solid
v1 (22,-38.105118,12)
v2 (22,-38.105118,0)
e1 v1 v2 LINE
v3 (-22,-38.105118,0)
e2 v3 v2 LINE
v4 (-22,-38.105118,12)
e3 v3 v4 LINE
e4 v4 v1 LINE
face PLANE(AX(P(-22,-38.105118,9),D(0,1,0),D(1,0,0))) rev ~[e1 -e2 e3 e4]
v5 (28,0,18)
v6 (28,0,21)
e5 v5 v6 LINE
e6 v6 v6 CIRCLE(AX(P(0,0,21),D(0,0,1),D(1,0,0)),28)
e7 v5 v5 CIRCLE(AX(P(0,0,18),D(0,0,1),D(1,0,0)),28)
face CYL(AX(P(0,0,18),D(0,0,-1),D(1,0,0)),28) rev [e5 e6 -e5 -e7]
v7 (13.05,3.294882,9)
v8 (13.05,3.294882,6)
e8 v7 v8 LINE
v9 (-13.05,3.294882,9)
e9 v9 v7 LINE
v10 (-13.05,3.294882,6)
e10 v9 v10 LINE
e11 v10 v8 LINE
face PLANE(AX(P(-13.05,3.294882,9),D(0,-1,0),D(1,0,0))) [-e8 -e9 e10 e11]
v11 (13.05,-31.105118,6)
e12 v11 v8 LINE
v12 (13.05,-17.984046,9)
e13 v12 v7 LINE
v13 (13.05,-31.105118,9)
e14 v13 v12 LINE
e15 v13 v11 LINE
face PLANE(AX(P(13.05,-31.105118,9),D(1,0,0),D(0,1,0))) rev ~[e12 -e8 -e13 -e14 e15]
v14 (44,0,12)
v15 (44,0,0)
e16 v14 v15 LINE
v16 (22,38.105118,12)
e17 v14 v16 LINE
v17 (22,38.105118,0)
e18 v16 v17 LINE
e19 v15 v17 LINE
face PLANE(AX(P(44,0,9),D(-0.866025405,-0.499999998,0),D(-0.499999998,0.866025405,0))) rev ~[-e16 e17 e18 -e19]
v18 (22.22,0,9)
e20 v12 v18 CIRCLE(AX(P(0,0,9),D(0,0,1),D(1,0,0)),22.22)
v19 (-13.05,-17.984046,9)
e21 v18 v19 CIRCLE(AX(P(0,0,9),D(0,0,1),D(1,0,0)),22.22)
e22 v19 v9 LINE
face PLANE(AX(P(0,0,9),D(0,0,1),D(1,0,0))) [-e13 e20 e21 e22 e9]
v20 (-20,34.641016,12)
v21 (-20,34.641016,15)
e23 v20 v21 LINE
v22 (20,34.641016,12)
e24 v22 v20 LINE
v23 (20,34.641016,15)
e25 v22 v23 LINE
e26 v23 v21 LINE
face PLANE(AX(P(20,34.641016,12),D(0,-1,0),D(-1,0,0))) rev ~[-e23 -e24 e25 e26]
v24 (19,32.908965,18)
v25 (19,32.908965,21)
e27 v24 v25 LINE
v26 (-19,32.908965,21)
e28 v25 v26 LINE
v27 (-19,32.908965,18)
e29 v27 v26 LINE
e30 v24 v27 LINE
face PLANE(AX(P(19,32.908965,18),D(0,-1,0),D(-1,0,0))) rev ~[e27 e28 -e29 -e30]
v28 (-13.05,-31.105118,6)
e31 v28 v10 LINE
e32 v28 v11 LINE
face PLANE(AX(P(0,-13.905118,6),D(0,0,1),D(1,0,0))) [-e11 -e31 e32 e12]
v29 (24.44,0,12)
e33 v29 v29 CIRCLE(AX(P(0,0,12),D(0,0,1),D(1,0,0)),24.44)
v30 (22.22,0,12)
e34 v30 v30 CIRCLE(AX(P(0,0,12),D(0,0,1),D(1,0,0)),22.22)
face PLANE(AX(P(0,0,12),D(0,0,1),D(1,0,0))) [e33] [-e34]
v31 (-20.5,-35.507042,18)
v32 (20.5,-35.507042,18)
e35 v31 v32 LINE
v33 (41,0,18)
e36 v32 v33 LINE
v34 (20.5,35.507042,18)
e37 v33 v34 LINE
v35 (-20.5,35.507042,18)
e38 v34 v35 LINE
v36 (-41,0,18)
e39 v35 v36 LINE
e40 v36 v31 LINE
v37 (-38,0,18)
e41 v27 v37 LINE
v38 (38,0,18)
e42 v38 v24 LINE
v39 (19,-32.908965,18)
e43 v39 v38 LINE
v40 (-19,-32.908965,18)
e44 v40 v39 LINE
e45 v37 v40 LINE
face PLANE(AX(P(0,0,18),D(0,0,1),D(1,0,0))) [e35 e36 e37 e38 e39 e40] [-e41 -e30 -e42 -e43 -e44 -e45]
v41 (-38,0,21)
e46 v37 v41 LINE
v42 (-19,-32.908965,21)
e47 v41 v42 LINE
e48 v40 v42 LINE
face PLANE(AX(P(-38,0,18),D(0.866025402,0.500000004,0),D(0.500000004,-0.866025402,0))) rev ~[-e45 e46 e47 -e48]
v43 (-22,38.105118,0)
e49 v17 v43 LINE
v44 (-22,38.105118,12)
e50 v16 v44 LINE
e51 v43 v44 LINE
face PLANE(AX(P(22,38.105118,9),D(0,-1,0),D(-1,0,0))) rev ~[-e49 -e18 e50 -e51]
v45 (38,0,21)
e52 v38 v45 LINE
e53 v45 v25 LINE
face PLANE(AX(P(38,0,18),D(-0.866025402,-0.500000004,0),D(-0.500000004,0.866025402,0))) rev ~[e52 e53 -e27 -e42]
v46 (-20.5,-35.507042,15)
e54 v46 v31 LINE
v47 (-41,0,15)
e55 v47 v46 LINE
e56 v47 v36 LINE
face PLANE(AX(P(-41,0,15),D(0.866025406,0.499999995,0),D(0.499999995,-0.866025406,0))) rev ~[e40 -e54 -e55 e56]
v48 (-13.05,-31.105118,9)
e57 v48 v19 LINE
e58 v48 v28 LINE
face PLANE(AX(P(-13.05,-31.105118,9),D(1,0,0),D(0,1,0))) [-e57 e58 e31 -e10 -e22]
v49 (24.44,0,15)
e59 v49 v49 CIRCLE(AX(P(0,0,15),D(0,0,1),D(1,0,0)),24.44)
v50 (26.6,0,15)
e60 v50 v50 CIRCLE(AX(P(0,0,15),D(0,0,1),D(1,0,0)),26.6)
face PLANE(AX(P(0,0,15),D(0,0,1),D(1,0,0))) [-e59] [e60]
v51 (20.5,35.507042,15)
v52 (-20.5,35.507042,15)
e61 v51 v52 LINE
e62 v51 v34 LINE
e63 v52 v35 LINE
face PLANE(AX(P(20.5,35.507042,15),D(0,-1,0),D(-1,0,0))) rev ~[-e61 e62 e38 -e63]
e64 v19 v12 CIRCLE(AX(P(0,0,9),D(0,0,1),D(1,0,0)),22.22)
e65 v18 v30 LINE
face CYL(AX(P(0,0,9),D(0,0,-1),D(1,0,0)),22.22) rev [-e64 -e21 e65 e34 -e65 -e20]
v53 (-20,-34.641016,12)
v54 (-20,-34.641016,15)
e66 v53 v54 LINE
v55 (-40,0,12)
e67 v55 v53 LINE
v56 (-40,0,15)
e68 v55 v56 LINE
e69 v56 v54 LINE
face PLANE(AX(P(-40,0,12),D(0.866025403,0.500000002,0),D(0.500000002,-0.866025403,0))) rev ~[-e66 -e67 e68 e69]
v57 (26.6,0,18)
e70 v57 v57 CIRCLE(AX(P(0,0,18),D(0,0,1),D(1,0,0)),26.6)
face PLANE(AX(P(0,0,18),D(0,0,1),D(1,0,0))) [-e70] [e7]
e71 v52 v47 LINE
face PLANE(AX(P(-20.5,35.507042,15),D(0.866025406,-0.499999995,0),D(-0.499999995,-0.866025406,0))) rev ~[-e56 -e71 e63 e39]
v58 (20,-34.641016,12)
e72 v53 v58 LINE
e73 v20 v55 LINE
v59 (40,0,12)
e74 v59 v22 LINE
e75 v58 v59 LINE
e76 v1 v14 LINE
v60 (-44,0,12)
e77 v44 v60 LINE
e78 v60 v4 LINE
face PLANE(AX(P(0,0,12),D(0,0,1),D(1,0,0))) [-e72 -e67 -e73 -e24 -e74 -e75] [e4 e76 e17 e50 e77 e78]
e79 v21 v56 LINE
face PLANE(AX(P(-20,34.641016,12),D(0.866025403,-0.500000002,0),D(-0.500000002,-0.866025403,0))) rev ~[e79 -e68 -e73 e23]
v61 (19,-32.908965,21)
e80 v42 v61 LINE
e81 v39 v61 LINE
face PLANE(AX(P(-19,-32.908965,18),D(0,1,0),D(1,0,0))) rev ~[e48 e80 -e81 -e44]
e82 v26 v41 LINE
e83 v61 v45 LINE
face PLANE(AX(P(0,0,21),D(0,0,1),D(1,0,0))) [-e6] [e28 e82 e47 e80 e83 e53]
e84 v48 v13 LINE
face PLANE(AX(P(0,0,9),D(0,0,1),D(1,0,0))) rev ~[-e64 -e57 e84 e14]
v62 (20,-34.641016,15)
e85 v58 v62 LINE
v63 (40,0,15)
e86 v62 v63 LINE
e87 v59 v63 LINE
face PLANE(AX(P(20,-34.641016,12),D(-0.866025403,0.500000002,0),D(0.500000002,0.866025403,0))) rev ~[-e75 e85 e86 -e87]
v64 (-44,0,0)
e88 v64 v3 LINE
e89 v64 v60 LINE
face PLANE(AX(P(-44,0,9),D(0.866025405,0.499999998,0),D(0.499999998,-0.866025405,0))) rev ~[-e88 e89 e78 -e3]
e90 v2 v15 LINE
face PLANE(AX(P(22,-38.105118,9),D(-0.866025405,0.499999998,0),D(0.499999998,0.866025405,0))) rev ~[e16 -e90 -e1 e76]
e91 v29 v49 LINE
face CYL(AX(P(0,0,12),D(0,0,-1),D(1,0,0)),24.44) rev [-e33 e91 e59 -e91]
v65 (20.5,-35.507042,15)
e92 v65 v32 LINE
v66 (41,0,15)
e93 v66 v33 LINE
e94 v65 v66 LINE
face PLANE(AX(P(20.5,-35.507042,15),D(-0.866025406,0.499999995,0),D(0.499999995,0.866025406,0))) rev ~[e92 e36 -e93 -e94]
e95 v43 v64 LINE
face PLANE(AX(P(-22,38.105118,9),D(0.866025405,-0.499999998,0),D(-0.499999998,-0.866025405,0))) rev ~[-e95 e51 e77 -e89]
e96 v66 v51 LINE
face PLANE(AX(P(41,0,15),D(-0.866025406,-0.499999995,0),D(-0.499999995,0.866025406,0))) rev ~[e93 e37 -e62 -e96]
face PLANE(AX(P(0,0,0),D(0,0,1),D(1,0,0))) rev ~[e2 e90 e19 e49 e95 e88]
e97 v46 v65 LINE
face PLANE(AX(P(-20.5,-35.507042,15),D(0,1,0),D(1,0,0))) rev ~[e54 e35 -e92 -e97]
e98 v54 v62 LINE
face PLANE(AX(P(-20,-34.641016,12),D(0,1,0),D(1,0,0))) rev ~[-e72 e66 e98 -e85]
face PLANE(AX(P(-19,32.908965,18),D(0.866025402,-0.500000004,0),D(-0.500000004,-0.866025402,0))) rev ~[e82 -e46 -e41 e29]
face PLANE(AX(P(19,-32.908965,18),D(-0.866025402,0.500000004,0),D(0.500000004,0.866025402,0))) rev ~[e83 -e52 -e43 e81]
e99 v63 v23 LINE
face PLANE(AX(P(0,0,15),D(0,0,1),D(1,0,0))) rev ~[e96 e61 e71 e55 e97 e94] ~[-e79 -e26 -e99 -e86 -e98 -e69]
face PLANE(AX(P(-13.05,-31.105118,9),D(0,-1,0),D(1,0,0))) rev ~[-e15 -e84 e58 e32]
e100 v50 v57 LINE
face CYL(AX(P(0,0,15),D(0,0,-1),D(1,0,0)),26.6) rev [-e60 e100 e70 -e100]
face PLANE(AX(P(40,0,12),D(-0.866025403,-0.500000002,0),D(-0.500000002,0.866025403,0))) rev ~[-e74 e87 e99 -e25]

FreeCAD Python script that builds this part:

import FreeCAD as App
import Part
import Sketcher
Q = App.Units.Quantity


def add_polygon(sketch, points):
    """Adds a closed chain of lines whose ends are joined by coincident constraints."""
    first, n = sketch.GeometryCount, len(points)
    for a, b in zip(points, points[1:] + points[:1]):
        sketch.addGeometry(Part.LineSegment(App.Vector(*a, 0), App.Vector(*b, 0)), False)
    for i in range(n):
        sketch.addConstraint(Sketcher.Constraint("Coincident", first + i, 2, first + (i + 1) % n, 1))

doc = App.newDocument("Part")
body = doc.addObject("PartDesign::Body", "Body")

# Sketch on XY plane
sketch1 = doc.addObject("Sketcher::SketchObject", "Sketch")
body.addObject(sketch1)
sketch1.AttachmentSupport = (doc.XY_Plane, [""])
sketch1.MapMode = "FlatFace"
add_polygon(sketch1, [(44, 0), (22, 38), (-22, 38), (-44, 0), (-22, -38), (22, -38)])  # lines 0-5
sketch1.addConstraint(Sketcher.Constraint("Horizontal", 1))
sketch1.addConstraint(Sketcher.Constraint("Horizontal", 4))
sketch1.addConstraint(Sketcher.Constraint("Symmetric", 0, 2, 3, 2, -1, 1))
sketch1.addConstraint(Sketcher.Constraint("Symmetric", 2, 2, 5, 2, -1, 1))
sketch1.addConstraint(Sketcher.Constraint("PointOnObject", 2, 2, -1))
sketch1.addConstraint(Sketcher.Constraint("Parallel", 2, 5))
sketch1.addConstraint(Sketcher.Constraint("Vertical", 1, 2, 3, 2))
sketch1.addConstraint(Sketcher.Constraint("DistanceX", 1, 2, 1, 1, Q("44 mm")))
sketch1.addConstraint(Sketcher.Constraint("Angle", 0, Q("120 deg")))
sketch1.addConstraint(Sketcher.Constraint("Distance", 0, Q("44 mm")))
pad1 = doc.addObject("PartDesign::Pad", "Pad")
body.addObject(pad1)
pad1.Profile = sketch1
pad1.Length = 9

# Sketch on XY plane
sketch2 = doc.addObject("Sketcher::SketchObject", "Sketch001")
body.addObject(sketch2)
sketch2.AttachmentSupport = (doc.XY_Plane, [""])
sketch2.MapMode = "FlatFace"
sketch2.AttachmentOffset = App.Placement(App.Vector(0, 0, 9), App.Rotation())
add_polygon(sketch2, [(-13, 3), (-13, -31), (13, -31), (13, 3)])  # lines 0-3
sketch2.addConstraint(Sketcher.Constraint("Vertical", 0))
sketch2.addConstraint(Sketcher.Constraint("Horizontal", 1))
sketch2.addConstraint(Sketcher.Constraint("Vertical", 2))
sketch2.addConstraint(Sketcher.Constraint("Horizontal", 3))
sketch2.addConstraint(Sketcher.Constraint("DistanceX", 1, 1, 1, 2, Q("26.1 mm")))
sketch2.addConstraint(Sketcher.Constraint("DistanceY", 0, 2, 0, 1, Q("34.4 mm")))
sketch2.addConstraint(Sketcher.Constraint("DistanceX", 0, 2, -1, 1, Q("13.05 mm")))
sketch2.addConstraint(Sketcher.Constraint("DistanceY", 0, 2, -1, 1, Q("31.105118 mm")))
pocket1 = doc.addObject("PartDesign::Pocket", "Pocket")
body.addObject(pocket1)
pocket1.Profile = sketch2
pocket1.Length = 3

# Sketch on XY plane
sketch3 = doc.addObject("Sketcher::SketchObject", "Sketch002")
body.addObject(sketch3)
sketch3.AttachmentSupport = (doc.XY_Plane, [""])
sketch3.MapMode = "FlatFace"
sketch3.AttachmentOffset = App.Placement(App.Vector(0, 0, 9), App.Rotation())
add_polygon(sketch3, [(22, 38), (-22, 38), (-44, 0), (-22, -38), (22, -38), (44, 0)])  # lines 0-5
sketch3.addGeometry(Part.Circle(App.Vector(0, 0, 0), App.Vector(0, 0, 1), 22), False)  # 6
sketch3.addConstraint(Sketcher.Constraint("Horizontal", 0))
sketch3.addConstraint(Sketcher.Constraint("Horizontal", 3))
sketch3.addConstraint(Sketcher.Constraint("Coincident", 6, 3, -1, 1))
sketch3.addConstraint(Sketcher.Constraint("Symmetric", 0, 2, 3, 2, -1, 1))
sketch3.addConstraint(Sketcher.Constraint("Symmetric", 1, 2, 4, 2, -1, 1))
sketch3.addConstraint(Sketcher.Constraint("PointOnObject", 1, 2, -1))
sketch3.addConstraint(Sketcher.Constraint("Parallel", 2, 5))
sketch3.addConstraint(Sketcher.Constraint("Vertical", 0, 2, 2, 2))
sketch3.addConstraint(Sketcher.Constraint("Diameter", 6, Q("44.44 mm")))
sketch3.addConstraint(Sketcher.Constraint("DistanceX", 0, 2, 0, 1, Q("44 mm")))
sketch3.addConstraint(Sketcher.Constraint("Angle", 1, Q("-120 deg")))
sketch3.addConstraint(Sketcher.Constraint("Distance", 1, Q("44 mm")))
pad2 = doc.addObject("PartDesign::Pad", "Pad001")
body.addObject(pad2)
pad2.Profile = sketch3
pad2.Length = 3

# Sketch on XY plane
sketch4 = doc.addObject("Sketcher::SketchObject", "Sketch003")
body.addObject(sketch4)
sketch4.AttachmentSupport = (doc.XY_Plane, [""])
sketch4.MapMode = "FlatFace"
sketch4.AttachmentOffset = App.Placement(App.Vector(0, 0, 12), App.Rotation())
add_polygon(sketch4, [(40, 0), (20, 35), (-20, 35), (-40, 0), (-20, -35), (20, -35)])  # lines 0-5
sketch4.addGeometry(Part.Circle(App.Vector(0, 0, 0), App.Vector(0, 0, 1), 24), False)  # 6
sketch4.addConstraint(Sketcher.Constraint("Horizontal", 1))
sketch4.addConstraint(Sketcher.Constraint("Horizontal", 4))
sketch4.addConstraint(Sketcher.Constraint("Coincident", 6, 3, -1, 1))
sketch4.addConstraint(Sketcher.Constraint("Symmetric", 0, 2, 3, 2, -1, 1))
sketch4.addConstraint(Sketcher.Constraint("Symmetric", 2, 2, 5, 2, -1, 1))
sketch4.addConstraint(Sketcher.Constraint("PointOnObject", 2, 2, -1))
sketch4.addConstraint(Sketcher.Constraint("Parallel", 2, 5))
sketch4.addConstraint(Sketcher.Constraint("Vertical", 1, 2, 3, 2))
sketch4.addConstraint(Sketcher.Constraint("Diameter", 6, Q("48.88 mm")))
sketch4.addConstraint(Sketcher.Constraint("DistanceX", 1, 2, 1, 1, Q("40 mm")))
sketch4.addConstraint(Sketcher.Constraint("Angle", 0, Q("120 deg")))
sketch4.addConstraint(Sketcher.Constraint("Distance", 0, Q("40 mm")))
pad3 = doc.addObject("PartDesign::Pad", "Pad002")
body.addObject(pad3)
pad3.Profile = sketch4
pad3.Length = 3

# Sketch on XY plane
sketch5 = doc.addObject("Sketcher::SketchObject", "Sketch004")
body.addObject(sketch5)
sketch5.AttachmentSupport = (doc.XY_Plane, [""])
sketch5.MapMode = "FlatFace"
sketch5.AttachmentOffset = App.Placement(App.Vector(0, 0, 15), App.Rotation())
add_polygon(sketch5, [(41, 0), (20, 36), (-20, 36), (-41, 0), (-20, -36), (20, -36)])  # lines 0-5
sketch5.addGeometry(Part.Circle(App.Vector(0, 0, 0), App.Vector(0, 0, 1), 27), False)  # 6
sketch5.addConstraint(Sketcher.Constraint("Horizontal", 1))
sketch5.addConstraint(Sketcher.Constraint("Horizontal", 4))
sketch5.addConstraint(Sketcher.Constraint("Coincident", 6, 3, -1, 1))
sketch5.addConstraint(Sketcher.Constraint("Symmetric", 0, 2, 3, 2, -1, 1))
sketch5.addConstraint(Sketcher.Constraint("Symmetric", 2, 2, 5, 2, -1, 1))
sketch5.addConstraint(Sketcher.Constraint("PointOnObject", 2, 2, -1))
sketch5.addConstraint(Sketcher.Constraint("Parallel", 2, 5))
sketch5.addConstraint(Sketcher.Constraint("Vertical", 1, 2, 3, 2))
sketch5.addConstraint(Sketcher.Constraint("Diameter", 6, Q("53.2 mm")))
sketch5.addConstraint(Sketcher.Constraint("DistanceX", 1, 2, 1, 1, Q("41 mm")))
sketch5.addConstraint(Sketcher.Constraint("Angle", 0, Q("120 deg")))
sketch5.addConstraint(Sketcher.Constraint("Distance", 0, Q("41 mm")))
pad4 = doc.addObject("PartDesign::Pad", "Pad003")
body.addObject(pad4)
pad4.Profile = sketch5
pad4.Length = 3

# Sketch on XY plane
sketch6 = doc.addObject("Sketcher::SketchObject", "Sketch005")
body.addObject(sketch6)
sketch6.AttachmentSupport = (doc.XY_Plane, [""])
sketch6.MapMode = "FlatFace"
sketch6.AttachmentOffset = App.Placement(App.Vector(0, 0, 18), App.Rotation())
add_polygon(sketch6, [(19, 33), (-19, 33), (-38, 0), (-19, -33), (19, -33), (38, 0)])  # lines 0-5
sketch6.addGeometry(Part.Circle(App.Vector(0, 0, 0), App.Vector(0, 0, 1), 28), False)  # 6
sketch6.addConstraint(Sketcher.Constraint("Horizontal", 0))
sketch6.addConstraint(Sketcher.Constraint("Horizontal", 3))
sketch6.addConstraint(Sketcher.Constraint("Coincident", 6, 3, -1, 1))
sketch6.addConstraint(Sketcher.Constraint("Symmetric", 0, 2, 3, 2, -1, 1))
sketch6.addConstraint(Sketcher.Constraint("Symmetric", 1, 2, 4, 2, -1, 1))
sketch6.addConstraint(Sketcher.Constraint("PointOnObject", 1, 2, -1))
sketch6.addConstraint(Sketcher.Constraint("Parallel", 2, 5))
sketch6.addConstraint(Sketcher.Constraint("Vertical", 0, 2, 2, 2))
sketch6.addConstraint(Sketcher.Constraint("Diameter", 6, Q("56 mm")))
sketch6.addConstraint(Sketcher.Constraint("DistanceX", 0, 2, 0, 1, Q("38 mm")))
sketch6.addConstraint(Sketcher.Constraint("Angle", 1, Q("-120 deg")))
sketch6.addConstraint(Sketcher.Constraint("Distance", 1, Q("38 mm")))
pad5 = doc.addObject("PartDesign::Pad", "Pad004")
body.addObject(pad5)
pad5.Profile = sketch6
pad5.Length = 3

doc.recompute()
